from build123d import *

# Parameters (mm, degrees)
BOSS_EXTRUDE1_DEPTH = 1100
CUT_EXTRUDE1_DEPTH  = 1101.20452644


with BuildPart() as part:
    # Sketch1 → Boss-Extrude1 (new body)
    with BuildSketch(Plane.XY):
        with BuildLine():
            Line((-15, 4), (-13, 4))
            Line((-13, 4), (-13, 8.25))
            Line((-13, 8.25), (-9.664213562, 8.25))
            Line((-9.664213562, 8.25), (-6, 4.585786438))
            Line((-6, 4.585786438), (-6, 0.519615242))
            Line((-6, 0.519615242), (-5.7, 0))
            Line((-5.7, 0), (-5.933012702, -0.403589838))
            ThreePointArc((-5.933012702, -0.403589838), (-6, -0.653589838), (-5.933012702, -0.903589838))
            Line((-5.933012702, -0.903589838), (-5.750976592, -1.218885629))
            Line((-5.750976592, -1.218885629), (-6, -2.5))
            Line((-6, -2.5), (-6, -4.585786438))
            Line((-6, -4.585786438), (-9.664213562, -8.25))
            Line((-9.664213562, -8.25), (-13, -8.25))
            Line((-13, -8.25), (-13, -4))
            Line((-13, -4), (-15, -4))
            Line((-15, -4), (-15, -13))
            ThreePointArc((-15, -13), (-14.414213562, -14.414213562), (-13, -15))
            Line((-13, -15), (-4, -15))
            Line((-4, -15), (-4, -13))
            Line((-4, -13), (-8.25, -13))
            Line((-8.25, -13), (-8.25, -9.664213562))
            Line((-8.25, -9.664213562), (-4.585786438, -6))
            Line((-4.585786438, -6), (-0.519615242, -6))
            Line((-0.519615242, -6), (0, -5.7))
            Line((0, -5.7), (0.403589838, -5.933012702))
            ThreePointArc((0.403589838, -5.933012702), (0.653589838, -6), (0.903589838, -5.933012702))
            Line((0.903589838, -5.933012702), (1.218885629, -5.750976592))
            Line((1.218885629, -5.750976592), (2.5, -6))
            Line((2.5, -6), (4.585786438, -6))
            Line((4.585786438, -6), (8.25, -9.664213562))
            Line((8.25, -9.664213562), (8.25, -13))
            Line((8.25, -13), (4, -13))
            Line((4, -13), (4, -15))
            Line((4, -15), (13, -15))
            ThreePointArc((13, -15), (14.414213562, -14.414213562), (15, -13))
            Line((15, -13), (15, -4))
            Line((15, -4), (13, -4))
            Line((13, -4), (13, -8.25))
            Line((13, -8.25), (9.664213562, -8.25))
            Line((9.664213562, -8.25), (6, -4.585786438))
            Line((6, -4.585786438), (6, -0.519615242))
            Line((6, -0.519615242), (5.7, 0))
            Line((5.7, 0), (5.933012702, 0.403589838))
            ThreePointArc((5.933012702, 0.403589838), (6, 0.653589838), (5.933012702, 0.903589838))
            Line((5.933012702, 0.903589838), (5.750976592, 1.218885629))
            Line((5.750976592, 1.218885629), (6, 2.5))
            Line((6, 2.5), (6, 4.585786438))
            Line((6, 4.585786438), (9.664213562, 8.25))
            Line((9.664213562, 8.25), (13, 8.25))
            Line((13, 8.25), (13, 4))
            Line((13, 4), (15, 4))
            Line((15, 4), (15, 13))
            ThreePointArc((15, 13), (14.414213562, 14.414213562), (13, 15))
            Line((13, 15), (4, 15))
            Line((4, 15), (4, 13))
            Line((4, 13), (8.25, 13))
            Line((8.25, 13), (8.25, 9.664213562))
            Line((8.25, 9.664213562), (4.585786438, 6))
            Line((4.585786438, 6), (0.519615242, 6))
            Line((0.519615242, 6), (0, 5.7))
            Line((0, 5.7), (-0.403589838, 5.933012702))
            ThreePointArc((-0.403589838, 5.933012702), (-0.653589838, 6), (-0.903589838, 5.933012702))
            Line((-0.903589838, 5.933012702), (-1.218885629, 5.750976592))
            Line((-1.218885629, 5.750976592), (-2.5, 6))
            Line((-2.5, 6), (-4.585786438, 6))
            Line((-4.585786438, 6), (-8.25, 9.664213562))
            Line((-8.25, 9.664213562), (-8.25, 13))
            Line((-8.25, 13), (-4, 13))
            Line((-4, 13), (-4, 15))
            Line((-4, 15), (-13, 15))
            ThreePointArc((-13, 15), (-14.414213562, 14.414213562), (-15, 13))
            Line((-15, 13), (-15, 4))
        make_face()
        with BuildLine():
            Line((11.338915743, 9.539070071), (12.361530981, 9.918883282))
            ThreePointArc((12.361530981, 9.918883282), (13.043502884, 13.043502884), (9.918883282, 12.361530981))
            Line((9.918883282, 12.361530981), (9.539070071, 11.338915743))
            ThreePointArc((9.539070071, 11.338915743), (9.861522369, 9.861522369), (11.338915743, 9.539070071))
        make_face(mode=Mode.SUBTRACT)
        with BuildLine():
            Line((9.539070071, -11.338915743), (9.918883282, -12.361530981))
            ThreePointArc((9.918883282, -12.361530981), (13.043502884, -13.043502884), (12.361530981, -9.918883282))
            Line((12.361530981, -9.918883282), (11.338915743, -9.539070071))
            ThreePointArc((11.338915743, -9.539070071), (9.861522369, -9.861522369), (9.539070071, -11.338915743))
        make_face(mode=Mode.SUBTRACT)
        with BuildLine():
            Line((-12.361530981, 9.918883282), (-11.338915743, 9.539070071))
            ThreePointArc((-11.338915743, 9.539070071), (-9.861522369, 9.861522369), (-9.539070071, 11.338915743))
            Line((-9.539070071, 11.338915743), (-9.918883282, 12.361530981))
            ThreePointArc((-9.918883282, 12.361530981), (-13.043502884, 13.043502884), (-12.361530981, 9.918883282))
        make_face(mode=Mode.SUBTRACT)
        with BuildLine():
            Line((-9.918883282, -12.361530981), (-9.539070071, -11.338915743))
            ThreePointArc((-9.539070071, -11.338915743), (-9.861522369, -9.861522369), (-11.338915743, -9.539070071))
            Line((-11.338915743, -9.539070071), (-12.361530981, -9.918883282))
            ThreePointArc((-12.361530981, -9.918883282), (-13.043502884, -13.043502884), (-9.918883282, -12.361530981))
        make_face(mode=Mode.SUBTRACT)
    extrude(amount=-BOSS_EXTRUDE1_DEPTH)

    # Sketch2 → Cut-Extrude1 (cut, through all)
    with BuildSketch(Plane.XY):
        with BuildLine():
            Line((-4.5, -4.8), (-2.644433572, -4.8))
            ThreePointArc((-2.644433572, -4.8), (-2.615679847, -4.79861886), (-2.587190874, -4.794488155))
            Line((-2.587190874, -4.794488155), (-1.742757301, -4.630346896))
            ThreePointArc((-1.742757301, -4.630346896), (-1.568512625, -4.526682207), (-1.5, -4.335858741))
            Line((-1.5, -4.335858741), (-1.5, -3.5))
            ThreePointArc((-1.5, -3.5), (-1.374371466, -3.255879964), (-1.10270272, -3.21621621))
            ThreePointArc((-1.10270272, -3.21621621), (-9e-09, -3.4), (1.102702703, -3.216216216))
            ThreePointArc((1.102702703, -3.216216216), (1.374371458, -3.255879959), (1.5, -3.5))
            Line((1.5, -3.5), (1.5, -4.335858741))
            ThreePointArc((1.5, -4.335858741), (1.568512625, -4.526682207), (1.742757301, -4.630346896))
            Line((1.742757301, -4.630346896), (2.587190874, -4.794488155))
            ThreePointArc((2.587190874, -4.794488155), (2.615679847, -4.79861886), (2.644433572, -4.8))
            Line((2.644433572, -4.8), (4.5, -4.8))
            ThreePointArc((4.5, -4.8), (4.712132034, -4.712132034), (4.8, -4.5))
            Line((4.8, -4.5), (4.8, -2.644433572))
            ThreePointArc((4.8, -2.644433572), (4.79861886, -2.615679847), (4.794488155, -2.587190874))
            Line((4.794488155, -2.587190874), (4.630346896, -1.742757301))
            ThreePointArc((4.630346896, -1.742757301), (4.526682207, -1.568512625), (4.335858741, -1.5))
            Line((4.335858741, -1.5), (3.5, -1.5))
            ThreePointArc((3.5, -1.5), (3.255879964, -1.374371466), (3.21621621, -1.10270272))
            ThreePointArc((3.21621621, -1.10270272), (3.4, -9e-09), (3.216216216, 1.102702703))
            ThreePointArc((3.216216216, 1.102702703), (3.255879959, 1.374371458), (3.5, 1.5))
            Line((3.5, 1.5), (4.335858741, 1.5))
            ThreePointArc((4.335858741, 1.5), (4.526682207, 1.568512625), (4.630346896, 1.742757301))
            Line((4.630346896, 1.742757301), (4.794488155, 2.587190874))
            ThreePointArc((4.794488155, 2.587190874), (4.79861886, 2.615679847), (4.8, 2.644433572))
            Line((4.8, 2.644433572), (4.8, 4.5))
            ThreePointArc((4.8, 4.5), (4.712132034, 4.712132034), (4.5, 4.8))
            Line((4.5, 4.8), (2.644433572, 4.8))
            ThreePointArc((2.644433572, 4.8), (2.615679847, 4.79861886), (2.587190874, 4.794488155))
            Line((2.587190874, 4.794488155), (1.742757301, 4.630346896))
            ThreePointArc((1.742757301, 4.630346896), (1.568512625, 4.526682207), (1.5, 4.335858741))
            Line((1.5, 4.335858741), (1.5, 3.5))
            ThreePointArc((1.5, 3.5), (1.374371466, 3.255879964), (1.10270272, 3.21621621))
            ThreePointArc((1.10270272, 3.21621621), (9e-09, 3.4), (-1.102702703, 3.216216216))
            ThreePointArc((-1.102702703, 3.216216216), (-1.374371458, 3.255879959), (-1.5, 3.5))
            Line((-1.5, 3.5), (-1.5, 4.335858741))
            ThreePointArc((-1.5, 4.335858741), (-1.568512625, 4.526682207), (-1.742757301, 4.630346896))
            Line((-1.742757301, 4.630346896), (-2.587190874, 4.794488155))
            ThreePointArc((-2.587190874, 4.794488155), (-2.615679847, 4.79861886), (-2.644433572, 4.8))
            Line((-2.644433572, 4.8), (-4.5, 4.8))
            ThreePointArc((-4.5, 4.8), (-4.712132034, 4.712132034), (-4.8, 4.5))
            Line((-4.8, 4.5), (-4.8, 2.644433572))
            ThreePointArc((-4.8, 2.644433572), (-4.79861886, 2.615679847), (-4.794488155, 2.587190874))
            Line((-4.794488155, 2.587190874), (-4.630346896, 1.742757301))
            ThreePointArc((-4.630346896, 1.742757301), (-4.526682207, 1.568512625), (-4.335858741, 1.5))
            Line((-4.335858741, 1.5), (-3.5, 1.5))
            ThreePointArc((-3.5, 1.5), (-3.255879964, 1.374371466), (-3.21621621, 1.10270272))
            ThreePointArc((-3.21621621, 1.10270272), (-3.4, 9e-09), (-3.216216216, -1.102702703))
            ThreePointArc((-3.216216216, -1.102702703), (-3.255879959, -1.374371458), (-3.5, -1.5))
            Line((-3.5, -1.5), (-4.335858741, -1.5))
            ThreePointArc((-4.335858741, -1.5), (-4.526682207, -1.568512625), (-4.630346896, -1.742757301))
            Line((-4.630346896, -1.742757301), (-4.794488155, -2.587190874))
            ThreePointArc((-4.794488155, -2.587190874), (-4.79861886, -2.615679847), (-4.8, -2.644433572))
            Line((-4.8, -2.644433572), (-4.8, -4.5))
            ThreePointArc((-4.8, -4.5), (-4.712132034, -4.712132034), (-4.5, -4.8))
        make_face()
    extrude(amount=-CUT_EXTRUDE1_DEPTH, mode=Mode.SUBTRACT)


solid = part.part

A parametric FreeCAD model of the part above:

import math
import FreeCAD as App
import Part
import Sketcher
Q = App.Units.Quantity

doc = App.newDocument("Part")
params = doc.addObject("Spreadsheet::Sheet", "Params")
for row, (alias, value) in enumerate([
    ("sketch1_radius", "2 mm"),
    ("sketch1_radius2", "0.5 mm"),
    ("sketch1_radius3", "1.9 mm"),
    ("sketch1_radius4", "1.4 mm"),
    ("sketch1_width", "9 mm"),
    ("pad1_length", "1100 mm"),
    ("sketch2_radius", "0.3 mm"),
    ("sketch2_radius2", "3.4 mm"),
], start=1):
    params.set(f"A{row}", alias)
    params.set(f"B{row}", "=" + value)
    params.setAlias(f"B{row}", alias)

body = doc.addObject("PartDesign::Body", "Body")

# Sketch on XY plane
sketch1 = body.newObject("Sketcher::SketchObject", "Sketch")
sketch1.AttachmentSupport = (doc.getObject("XY_Plane"), [""])
sketch1.MapMode = "FlatFace"
sketch1.addGeometry(Part.LineSegment(App.Vector(-15, 4, 0), App.Vector(-13, 4, 0)), False)
sketch1.addGeometry(Part.LineSegment(App.Vector(-13, 4, 0), App.Vector(-13, 8.25, 0)), False)
sketch1.addGeometry(Part.LineSegment(App.Vector(-13, 8.25, 0), App.Vector(-9.66, 8.25, 0)), False)
sketch1.addGeometry(Part.LineSegment(App.Vector(-9.66, 8.25, 0), App.Vector(-6, 4.59, 0)), False)
sketch1.addGeometry(Part.LineSegment(App.Vector(-6, 4.59, 0), App.Vector(-6, 0.52, 0)), False)
sketch1.addGeometry(Part.LineSegment(App.Vector(-6, 0.52, 0), App.Vector(-5.7, 0, 0)), False)
sketch1.addGeometry(Part.LineSegment(App.Vector(-5.7, 0, 0), App.Vector(-5.93, -0.4, 0)), False)
sketch1.addGeometry(Part.ArcOfCircle(Part.Circle(App.Vector(-5.5, -0.65, 0), App.Vector(0, 0, 1), 0.5), math.radians(150), math.radians(210)), False)
sketch1.addGeometry(Part.LineSegment(App.Vector(-5.93, -0.9, 0), App.Vector(-5.75, -1.22, 0)), False)
sketch1.addGeometry(Part.LineSegment(App.Vector(-5.75, -1.22, 0), App.Vector(-6, -2.5, 0)), False)
sketch1.addGeometry(Part.LineSegment(App.Vector(-6, -2.5, 0), App.Vector(-6, -4.59, 0)), False)
sketch1.addGeometry(Part.LineSegment(App.Vector(-6, -4.59, 0), App.Vector(-9.66, -8.25, 0)), False)
sketch1.addGeometry(Part.LineSegment(App.Vector(-9.66, -8.25, 0), App.Vector(-13, -8.25, 0)), False)
sketch1.addGeometry(Part.LineSegment(App.Vector(-13, -8.25, 0), App.Vector(-13, -4, 0)), False)
sketch1.addGeometry(Part.LineSegment(App.Vector(-13, -4, 0), App.Vector(-15, -4, 0)), False)
sketch1.addGeometry(Part.LineSegment(App.Vector(-15, -4, 0), App.Vector(-15, -13, 0)), False)
sketch1.addGeometry(Part.ArcOfCircle(Part.Circle(App.Vector(-13, -13, 0), App.Vector(0, 0, 1), 2), math.radians(-180), math.radians(-90)), False)
sketch1.addGeometry(Part.LineSegment(App.Vector(-13, -15, 0), App.Vector(-4, -15, 0)), False)
sketch1.addGeometry(Part.LineSegment(App.Vector(-4, -15, 0), App.Vector(-4, -13, 0)), False)
sketch1.addGeometry(Part.LineSegment(App.Vector(-4, -13, 0), App.Vector(-8.25, -13, 0)), False)
sketch1.addGeometry(Part.LineSegment(App.Vector(-8.25, -13, 0), App.Vector(-8.25, -9.66, 0)), False)
sketch1.addGeometry(Part.LineSegment(App.Vector(-8.25, -9.66, 0), App.Vector(-4.59, -6, 0)), False)
sketch1.addGeometry(Part.LineSegment(App.Vector(-4.59, -6, 0), App.Vector(-0.52, -6, 0)), False)
sketch1.addGeometry(Part.LineSegment(App.Vector(-0.52, -6, 0), App.Vector(0, -5.7, 0)), False)
sketch1.addGeometry(Part.LineSegment(App.Vector(0, -5.7, 0), App.Vector(0.4, -5.93, 0)), False)
sketch1.addGeometry(Part.ArcOfCircle(Part.Circle(App.Vector(0.65, -5.5, 0), App.Vector(0, 0, 1), 0.5), math.radians(-120), math.radians(-60)), False)
sketch1.addGeometry(Part.LineSegment(App.Vector(0.9, -5.93, 0), App.Vector(1.22, -5.75, 0)), False)
sketch1.addGeometry(Part.LineSegment(App.Vector(1.22, -5.75, 0), App.Vector(2.5, -6, 0)), False)
sketch1.addGeometry(Part.LineSegment(App.Vector(2.5, -6, 0), App.Vector(4.59, -6, 0)), False)
sketch1.addGeometry(Part.LineSegment(App.Vector(4.59, -6, 0), App.Vector(8.25, -9.66, 0)), False)
sketch1.addGeometry(Part.LineSegment(App.Vector(8.25, -9.66, 0), App.Vector(8.25, -13, 0)), False)
sketch1.addGeometry(Part.LineSegment(App.Vector(8.25, -13, 0), App.Vector(4, -13, 0)), False)
sketch1.addGeometry(Part.LineSegment(App.Vector(4, -13, 0), App.Vector(4, -15, 0)), False)
sketch1.addGeometry(Part.LineSegment(App.Vector(4, -15, 0), App.Vector(13, -15, 0)), False)
sketch1.addGeometry(Part.ArcOfCircle(Part.Circle(App.Vector(13, -13, 0), App.Vector(0, 0, 1), 2), math.radians(-90), math.radians(0)), False)
sketch1.addGeometry(Part.LineSegment(App.Vector(15, -13, 0), App.Vector(15, -4, 0)), False)
sketch1.addGeometry(Part.LineSegment(App.Vector(15, -4, 0), App.Vector(13, -4, 0)), False)
sketch1.addGeometry(Part.LineSegment(App.Vector(13, -4, 0), App.Vector(13, -8.25, 0)), False)
sketch1.addGeometry(Part.LineSegment(App.Vector(13, -8.25, 0), App.Vector(9.66, -8.25, 0)), False)
sketch1.addGeometry(Part.LineSegment(App.Vector(9.66, -8.25, 0), App.Vector(6, -4.59, 0)), False)
sketch1.addGeometry(Part.LineSegment(App.Vector(6, -4.59, 0), App.Vector(6, -0.52, 0)), False)
sketch1.addGeometry(Part.LineSegment(App.Vector(6, -0.52, 0), App.Vector(5.7, 0, 0)), False)
sketch1.addGeometry(Part.LineSegment(App.Vector(5.7, 0, 0), App.Vector(5.93, 0.4, 0)), False)
sketch1.addGeometry(Part.ArcOfCircle(Part.Circle(App.Vector(5.5, 0.65, 0), App.Vector(0, 0, 1), 0.5), math.radians(-30), math.radians(30)), False)
sketch1.addGeometry(Part.LineSegment(App.Vector(5.93, 0.9, 0), App.Vector(5.75, 1.22, 0)), False)
sketch1.addGeometry(Part.LineSegment(App.Vector(5.75, 1.22, 0), App.Vector(6, 2.5, 0)), False)
sketch1.addGeometry(Part.LineSegment(App.Vector(6, 2.5, 0), App.Vector(6, 4.59, 0)), False)
sketch1.addGeometry(Part.LineSegment(App.Vector(6, 4.59, 0), App.Vector(9.66, 8.25, 0)), False)
sketch1.addGeometry(Part.LineSegment(App.Vector(9.66, 8.25, 0), App.Vector(13, 8.25, 0)), False)
sketch1.addGeometry(Part.LineSegment(App.Vector(13, 8.25, 0), App.Vector(13, 4, 0)), False)
sketch1.addGeometry(Part.LineSegment(App.Vector(13, 4, 0), App.Vector(15, 4, 0)), False)
sketch1.addGeometry(Part.LineSegment(App.Vector(15, 4, 0), App.Vector(15, 13, 0)), False)
sketch1.addGeometry(Part.ArcOfCircle(Part.Circle(App.Vector(13, 13, 0), App.Vector(0, 0, 1), 2), math.radians(0), math.radians(90)), False)
sketch1.addGeometry(Part.LineSegment(App.Vector(13, 15, 0), App.Vector(4, 15, 0)), False)
sketch1.addGeometry(Part.LineSegment(App.Vector(4, 15, 0), App.Vector(4, 13, 0)), False)
sketch1.addGeometry(Part.LineSegment(App.Vector(4, 13, 0), App.Vector(8.25, 13, 0)), False)
sketch1.addGeometry(Part.LineSegment(App.Vector(8.25, 13, 0), App.Vector(8.25, 9.66, 0)), False)
sketch1.addGeometry(Part.LineSegment(App.Vector(8.25, 9.66, 0), App.Vector(4.59, 6, 0)), False)
sketch1.addGeometry(Part.LineSegment(App.Vector(4.59, 6, 0), App.Vector(0.52, 6, 0)), False)
sketch1.addGeometry(Part.LineSegment(App.Vector(0.52, 6, 0), App.Vector(0, 5.7, 0)), False)
sketch1.addGeometry(Part.LineSegment(App.Vector(0, 5.7, 0), App.Vector(-0.4, 5.93, 0)), False)
sketch1.addGeometry(Part.ArcOfCircle(Part.Circle(App.Vector(-0.65, 5.5, 0), App.Vector(0, 0, 1), 0.5), math.radians(60), math.radians(120)), False)
sketch1.addGeometry(Part.LineSegment(App.Vector(-0.9, 5.93, 0), App.Vector(-1.22, 5.75, 0)), False)
sketch1.addGeometry(Part.LineSegment(App.Vector(-1.22, 5.75, 0), App.Vector(-2.5, 6, 0)), False)
sketch1.addGeometry(Part.LineSegment(App.Vector(-2.5, 6, 0), App.Vector(-4.59, 6, 0)), False)
sketch1.addGeometry(Part.LineSegment(App.Vector(-4.59, 6, 0), App.Vector(-8.25, 9.66, 0)), False)
sketch1.addGeometry(Part.LineSegment(App.Vector(-8.25, 9.66, 0), App.Vector(-8.25, 13, 0)), False)
sketch1.addGeometry(Part.LineSegment(App.Vector(-8.25, 13, 0), App.Vector(-4, 13, 0)), False)
sketch1.addGeometry(Part.LineSegment(App.Vector(-4, 13, 0), App.Vector(-4, 15, 0)), False)
sketch1.addGeometry(Part.LineSegment(App.Vector(-4, 15, 0), App.Vector(-13, 15, 0)), False)
sketch1.addGeometry(Part.ArcOfCircle(Part.Circle(App.Vector(-13, 13, 0), App.Vector(0, 0, 1), 2), math.radians(90), math.radians(180)), False)
sketch1.addGeometry(Part.LineSegment(App.Vector(-15, 13, 0), App.Vector(-15, 4, 0)), False)
sketch1.addGeometry(Part.LineSegment(App.Vector(-9.54, -11.34, 0), App.Vector(-9.92, -12.36, 0)), False)
sketch1.addGeometry(Part.ArcOfCircle(Part.Circle(App.Vector(-11.7, -11.7, 0), App.Vector(0, 0, 1), 1.9), math.radians(110), math.radians(340)), False)
sketch1.addGeometry(Part.LineSegment(App.Vector(-12.36, -9.92, 0), App.Vector(-11.34, -9.54, 0)), False)
sketch1.addGeometry(Part.ArcOfCircle(Part.Circle(App.Vector(-10.85, -10.85, 0), App.Vector(0, 0, 1), 1.4), math.radians(-20), math.radians(110)), False)
sketch1.addGeometry(Part.LineSegment(App.Vector(9.92, -12.36, 0), App.Vector(9.54, -11.34, 0)), False)
sketch1.addGeometry(Part.ArcOfCircle(Part.Circle(App.Vector(10.85, -10.85, 0), App.Vector(0, 0, 1), 1.4), math.radians(70), math.radians(200)), False)
sketch1.addGeometry(Part.LineSegment(App.Vector(11.34, -9.54, 0), App.Vector(12.36, -9.92, 0)), False)
sketch1.addGeometry(Part.ArcOfCircle(Part.Circle(App.Vector(11.7, -11.7, 0), App.Vector(0, 0, 1), 1.9), math.radians(-160), math.radians(70)), False)
sketch1.addGeometry(Part.LineSegment(App.Vector(-11.34, 9.54, 0), App.Vector(-12.36, 9.92, 0)), False)
sketch1.addGeometry(Part.ArcOfCircle(Part.Circle(App.Vector(-11.7, 11.7, 0), App.Vector(0, 0, 1), 1.9), math.radians(20), math.radians(250)), False)
sketch1.addGeometry(Part.LineSegment(App.Vector(-9.92, 12.36, 0), App.Vector(-9.54, 11.34, 0)), False)
sketch1.addGeometry(Part.ArcOfCircle(Part.Circle(App.Vector(-10.85, 10.85, 0), App.Vector(0, 0, 1), 1.4), math.radians(-110), math.radians(20)), False)
sketch1.addGeometry(Part.LineSegment(App.Vector(12.36, 9.92, 0), App.Vector(11.34, 9.54, 0)), False)
sketch1.addGeometry(Part.ArcOfCircle(Part.Circle(App.Vector(10.85, 10.85, 0), App.Vector(0, 0, 1), 1.4), math.radians(160), math.radians(290)), False)
sketch1.addGeometry(Part.LineSegment(App.Vector(9.54, 11.34, 0), App.Vector(9.92, 12.36, 0)), False)
sketch1.addGeometry(Part.ArcOfCircle(Part.Circle(App.Vector(11.7, 11.7, 0), App.Vector(0, 0, 1), 1.9), math.radians(-70), math.radians(160)), False)
sketch1.addConstraint(Sketcher.Constraint("Coincident", 0, 2, 1, 1))
sketch1.addConstraint(Sketcher.Constraint("Coincident", 1, 2, 2, 1))
sketch1.addConstraint(Sketcher.Constraint("Coincident", 2, 2, 3, 1))
sketch1.addConstraint(Sketcher.Constraint("Coincident", 3, 2, 4, 1))
sketch1.addConstraint(Sketcher.Constraint("Coincident", 4, 2, 5, 1))
sketch1.addConstraint(Sketcher.Constraint("Coincident", 5, 2, 6, 1))
sketch1.addConstraint(Sketcher.Constraint("Tangent", 6, 2, 7, 1))
sketch1.addConstraint(Sketcher.Constraint("Tangent", 7, 2, 8, 1))
sketch1.addConstraint(Sketcher.Constraint("Coincident", 8, 2, 9, 1))
sketch1.addConstraint(Sketcher.Constraint("Coincident", 9, 2, 10, 1))
sketch1.addConstraint(Sketcher.Constraint("Coincident", 10, 2, 11, 1))
sketch1.addConstraint(Sketcher.Constraint("Coincident", 11, 2, 12, 1))
sketch1.addConstraint(Sketcher.Constraint("Coincident", 12, 2, 13, 1))
sketch1.addConstraint(Sketcher.Constraint("Coincident", 13, 2, 14, 1))
sketch1.addConstraint(Sketcher.Constraint("Coincident", 14, 2, 15, 1))
sketch1.addConstraint(Sketcher.Constraint("Tangent", 15, 2, 16, 1))
sketch1.addConstraint(Sketcher.Constraint("Tangent", 16, 2, 17, 1))
sketch1.addConstraint(Sketcher.Constraint("Coincident", 17, 2, 18, 1))
sketch1.addConstraint(Sketcher.Constraint("Coincident", 18, 2, 19, 1))
sketch1.addConstraint(Sketcher.Constraint("Coincident", 19, 2, 20, 1))
sketch1.addConstraint(Sketcher.Constraint("Coincident", 20, 2, 21, 1))
sketch1.addConstraint(Sketcher.Constraint("Coincident", 21, 2, 22, 1))
sketch1.addConstraint(Sketcher.Constraint("Coincident", 22, 2, 23, 1))
sketch1.addConstraint(Sketcher.Constraint("Coincident", 23, 2, 24, 1))
sketch1.addConstraint(Sketcher.Constraint("Tangent", 24, 2, 25, 1))
sketch1.addConstraint(Sketcher.Constraint("Tangent", 25, 2, 26, 1))
sketch1.addConstraint(Sketcher.Constraint("Coincident", 26, 2, 27, 1))
sketch1.addConstraint(Sketcher.Constraint("Coincident", 27, 2, 28, 1))
sketch1.addConstraint(Sketcher.Constraint("Coincident", 28, 2, 29, 1))
sketch1.addConstraint(Sketcher.Constraint("Coincident", 29, 2, 30, 1))
sketch1.addConstraint(Sketcher.Constraint("Coincident", 30, 2, 31, 1))
sketch1.addConstraint(Sketcher.Constraint("Coincident", 31, 2, 32, 1))
sketch1.addConstraint(Sketcher.Constraint("Coincident", 32, 2, 33, 1))
sketch1.addConstraint(Sketcher.Constraint("Tangent", 33, 2, 34, 1))
sketch1.addConstraint(Sketcher.Constraint("Tangent", 34, 2, 35, 1))
sketch1.addConstraint(Sketcher.Constraint("Coincident", 35, 2, 36, 1))
sketch1.addConstraint(Sketcher.Constraint("Coincident", 36, 2, 37, 1))
sketch1.addConstraint(Sketcher.Constraint("Coincident", 37, 2, 38, 1))
sketch1.addConstraint(Sketcher.Constraint("Coincident", 38, 2, 39, 1))
sketch1.addConstraint(Sketcher.Constraint("Coincident", 39, 2, 40, 1))
sketch1.addConstraint(Sketcher.Constraint("Coincident", 40, 2, 41, 1))
sketch1.addConstraint(Sketcher.Constraint("Coincident", 41, 2, 42, 1))
sketch1.addConstraint(Sketcher.Constraint("Tangent", 42, 2, 43, 1))
sketch1.addConstraint(Sketcher.Constraint("Tangent", 43, 2, 44, 1))
sketch1.addConstraint(Sketcher.Constraint("Coincident", 44, 2, 45, 1))
sketch1.addConstraint(Sketcher.Constraint("Coincident", 45, 2, 46, 1))
sketch1.addConstraint(Sketcher.Constraint("Coincident", 46, 2, 47, 1))
sketch1.addConstraint(Sketcher.Constraint("Coincident", 47, 2, 48, 1))
sketch1.addConstraint(Sketcher.Constraint("Coincident", 48, 2, 49, 1))
sketch1.addConstraint(Sketcher.Constraint("Coincident", 49, 2, 50, 1))
sketch1.addConstraint(Sketcher.Constraint("Coincident", 50, 2, 51, 1))
sketch1.addConstraint(Sketcher.Constraint("Tangent", 51, 2, 52, 1))
sketch1.addConstraint(Sketcher.Constraint("Tangent", 52, 2, 53, 1))
sketch1.addConstraint(Sketcher.Constraint("Coincident", 53, 2, 54, 1))
sketch1.addConstraint(Sketcher.Constraint("Coincident", 54, 2, 55, 1))
sketch1.addConstraint(Sketcher.Constraint("Coincident", 55, 2, 56, 1))
sketch1.addConstraint(Sketcher.Constraint("Coincident", 56, 2, 57, 1))
sketch1.addConstraint(Sketcher.Constraint("Coincident", 57, 2, 58, 1))
sketch1.addConstraint(Sketcher.Constraint("Coincident", 58, 2, 59, 1))
sketch1.addConstraint(Sketcher.Constraint("Coincident", 59, 2, 60, 1))
sketch1.addConstraint(Sketcher.Constraint("Tangent", 60, 2, 61, 1))
sketch1.addConstraint(Sketcher.Constraint("Tangent", 61, 2, 62, 1))
sketch1.addConstraint(Sketcher.Constraint("Coincident", 62, 2, 63, 1))
sketch1.addConstraint(Sketcher.Constraint("Coincident", 63, 2, 64, 1))
sketch1.addConstraint(Sketcher.Constraint("Coincident", 64, 2, 65, 1))
sketch1.addConstraint(Sketcher.Constraint("Coincident", 65, 2, 66, 1))
sketch1.addConstraint(Sketcher.Constraint("Coincident", 66, 2, 67, 1))
sketch1.addConstraint(Sketcher.Constraint("Coincident", 67, 2, 68, 1))
sketch1.addConstraint(Sketcher.Constraint("Coincident", 68, 2, 69, 1))
sketch1.addConstraint(Sketcher.Constraint("Tangent", 69, 2, 70, 1))
sketch1.addConstraint(Sketcher.Constraint("Tangent", 70, 2, 71, 1))
sketch1.addConstraint(Sketcher.Constraint("Coincident", 71, 2, 0, 1))
sketch1.addConstraint(Sketcher.Constraint("Tangent", 72, 2, 73, 2))
sketch1.addConstraint(Sketcher.Constraint("Tangent", 73, 1, 74, 1))
sketch1.addConstraint(Sketcher.Constraint("Tangent", 74, 2, 75, 2))
sketch1.addConstraint(Sketcher.Constraint("Tangent", 75, 1, 72, 1))
sketch1.addConstraint(Sketcher.Constraint("Tangent", 76, 2, 77, 2))
sketch1.addConstraint(Sketcher.Constraint("Tangent", 77, 1, 78, 1))
sketch1.addConstraint(Sketcher.Constraint("Tangent", 78, 2, 79, 2))
sketch1.addConstraint(Sketcher.Constraint("Tangent", 79, 1, 76, 1))
sketch1.addConstraint(Sketcher.Constraint("Tangent", 80, 2, 81, 2))
sketch1.addConstraint(Sketcher.Constraint("Tangent", 81, 1, 82, 1))
sketch1.addConstraint(Sketcher.Constraint("Tangent", 82, 2, 83, 2))
sketch1.addConstraint(Sketcher.Constraint("Tangent", 83, 1, 80, 1))
sketch1.addConstraint(Sketcher.Constraint("Tangent", 84, 2, 85, 2))
sketch1.addConstraint(Sketcher.Constraint("Tangent", 85, 1, 86, 1))
sketch1.addConstraint(Sketcher.Constraint("Tangent", 86, 2, 87, 2))
sketch1.addConstraint(Sketcher.Constraint("Tangent", 87, 1, 84, 1))
sketch1.addConstraint(Sketcher.Constraint("Horizontal", 0))
sketch1.addConstraint(Sketcher.Constraint("Vertical", 1))
sketch1.addConstraint(Sketcher.Constraint("Horizontal", 2))
sketch1.addConstraint(Sketcher.Constraint("Vertical", 4))
sketch1.addConstraint(Sketcher.Constraint("Vertical", 10))
sketch1.addConstraint(Sketcher.Constraint("Horizontal", 12))
sketch1.addConstraint(Sketcher.Constraint("Vertical", 13))
sketch1.addConstraint(Sketcher.Constraint("Horizontal", 14))
sketch1.addConstraint(Sketcher.Constraint("Vertical", 15))
sketch1.addConstraint(Sketcher.Constraint("Horizontal", 17))
sketch1.addConstraint(Sketcher.Constraint("Vertical", 18))
sketch1.addConstraint(Sketcher.Constraint("Horizontal", 19))
sketch1.addConstraint(Sketcher.Constraint("Vertical", 20))
sketch1.addConstraint(Sketcher.Constraint("Horizontal", 22))
sketch1.addConstraint(Sketcher.Constraint("Horizontal", 28))
sketch1.addConstraint(Sketcher.Constraint("Vertical", 30))
sketch1.addConstraint(Sketcher.Constraint("Horizontal", 31))
sketch1.addConstraint(Sketcher.Constraint("Vertical", 32))
sketch1.addConstraint(Sketcher.Constraint("Horizontal", 33))
sketch1.addConstraint(Sketcher.Constraint("Vertical", 35))
sketch1.addConstraint(Sketcher.Constraint("Horizontal", 36))
sketch1.addConstraint(Sketcher.Constraint("Vertical", 37))
sketch1.addConstraint(Sketcher.Constraint("Horizontal", 38))
sketch1.addConstraint(Sketcher.Constraint("Vertical", 40))
sketch1.addConstraint(Sketcher.Constraint("Vertical", 46))
sketch1.addConstraint(Sketcher.Constraint("Horizontal", 48))
sketch1.addConstraint(Sketcher.Constraint("Vertical", 49))
sketch1.addConstraint(Sketcher.Constraint("Horizontal", 50))
sketch1.addConstraint(Sketcher.Constraint("Vertical", 51))
sketch1.addConstraint(Sketcher.Constraint("Horizontal", 53))
sketch1.addConstraint(Sketcher.Constraint("Vertical", 54))
sketch1.addConstraint(Sketcher.Constraint("Horizontal", 55))
sketch1.addConstraint(Sketcher.Constraint("Vertical", 56))
sketch1.addConstraint(Sketcher.Constraint("Horizontal", 58))
sketch1.addConstraint(Sketcher.Constraint("Horizontal", 64))
sketch1.addConstraint(Sketcher.Constraint("Vertical", 66))
sketch1.addConstraint(Sketcher.Constraint("Horizontal", 67))
sketch1.addConstraint(Sketcher.Constraint("Vertical", 68))
sketch1.addConstraint(Sketcher.Constraint("Horizontal", 69))
sketch1.addConstraint(Sketcher.Constraint("Vertical", 71))
sketch1.addConstraint(Sketcher.Constraint("Equal", 7, 25))
sketch1.addConstraint(Sketcher.Constraint("Equal", 16, 34))
sketch1.addConstraint(Sketcher.Constraint("Equal", 25, 43))
sketch1.addConstraint(Sketcher.Constraint("Equal", 34, 52))
sketch1.addConstraint(Sketcher.Constraint("Equal", 43, 61))
sketch1.addConstraint(Sketcher.Constraint("Equal", 52, 70))
sketch1.addConstraint(Sketcher.Constraint("Equal", 75, 77))
sketch1.addConstraint(Sketcher.Constraint("Equal", 73, 79))
sketch1.addConstraint(Sketcher.Constraint("Equal", 79, 81))
sketch1.addConstraint(Sketcher.Constraint("Equal", 77, 83))
sketch1.addConstraint(Sketcher.Constraint("Equal", 83, 85))
sketch1.addConstraint(Sketcher.Constraint("Equal", 81, 87))
sketch1.addConstraint(Sketcher.Constraint("Symmetric", 7, 3, 43, 3, -1, 1))
sketch1.addConstraint(Sketcher.Constraint("Symmetric", 16, 3, 52, 3, -1, 1))
sketch1.addConstraint(Sketcher.Constraint("Symmetric", 25, 3, 61, 3, -1, 1))
sketch1.addConstraint(Sketcher.Constraint("Symmetric", 34, 3, 70, 3, -1, 1))
sketch1.addConstraint(Sketcher.Constraint("Symmetric", 79, 3, 81, 3, -1, 1))
sketch1.addConstraint(Sketcher.Constraint("Symmetric", 77, 3, 83, 3, -1, 1))
sketch1.addConstraint(Sketcher.Constraint("Symmetric", 75, 3, 85, 3, -1, 1))
sketch1.addConstraint(Sketcher.Constraint("Symmetric", 73, 3, 87, 3, -1, 1))
sketch1.addConstraint(Sketcher.Constraint("Symmetric", 0, 2, 36, 2, -1, 1))
sketch1.addConstraint(Sketcher.Constraint("Symmetric", 2, 2, 38, 2, -1, 1))
sketch1.addConstraint(Sketcher.Constraint("Symmetric", 3, 2, 39, 2, -1, 1))
sketch1.addConstraint(Sketcher.Constraint("Symmetric", 5, 2, 41, 2, -1, 1))
sketch1.addConstraint(Sketcher.Constraint("Symmetric", 8, 2, 44, 2, -1, 1))
sketch1.addConstraint(Sketcher.Constraint("Symmetric", 9, 2, 45, 2, -1, 1))
sketch1.addConstraint(Sketcher.Constraint("Symmetric", 11, 2, 47, 2, -1, 1))
sketch1.addConstraint(Sketcher.Constraint("Symmetric", 13, 2, 49, 2, -1, 1))
sketch1.addConstraint(Sketcher.Constraint("Symmetric", 18, 2, 54, 2, -1, 1))
sketch1.addConstraint(Sketcher.Constraint("Symmetric", 20, 2, 56, 2, -1, 1))
sketch1.addConstraint(Sketcher.Constraint("Symmetric", 21, 2, 57, 2, -1, 1))
sketch1.addConstraint(Sketcher.Constraint("Symmetric", 23, 2, 59, 2, -1, 1))
sketch1.addConstraint(Sketcher.Constraint("Symmetric", 26, 2, 62, 2, -1, 1))
sketch1.addConstraint(Sketcher.Constraint("Symmetric", 27, 2, 63, 2, -1, 1))
sketch1.addConstraint(Sketcher.Constraint("Symmetric", 29, 2, 65, 2, -1, 1))
sketch1.addConstraint(Sketcher.Constraint("Symmetric", 31, 2, 67, 2, -1, 1))
sketch1.addConstraint(Sketcher.Constraint("Symmetric", 16, 3, 34, 3, -2))
sketch1.addConstraint(Sketcher.Constraint("Symmetric", 75, 3, 77, 3, -2))
sketch1.addConstraint(Sketcher.Constraint("Symmetric", 73, 3, 79, 3, -2))
sketch1.addConstraint(Sketcher.Constraint("Symmetric", 21, 2, 28, 2, -2))
sketch1.addConstraint(Sketcher.Constraint("Symmetric", 20, 2, 29, 2, -2))
sketch1.addConstraint(Sketcher.Constraint("Symmetric", 18, 2, 31, 2, -2))
sketch1.addConstraint(Sketcher.Constraint("Symmetric", 13, 2, 36, 2, -2))
sketch1.addConstraint(Sketcher.Constraint("Symmetric", 11, 2, 38, 2, -2))
sketch1.addConstraint(Sketcher.Constraint("Symmetric", 10, 2, 39, 2, -2))
sketch1.addConstraint(Sketcher.Constraint("PointOnObject", 5, 2, -1))
sketch1.addConstraint(Sketcher.Constraint("PointOnObject", 23, 2, -2))
sketch1.addConstraint(Sketcher.Constraint("Parallel", 5, 8))
sketch1.addConstraint(Sketcher.Constraint("Perpendicular", 3, 11))
sketch1.addConstraint(Sketcher.Constraint("Parallel", 11, 21))
sketch1.addConstraint(Sketcher.Constraint("Perpendicular", 8, 23))
sketch1.addConstraint(Sketcher.Constraint("Perpendicular", 6, 24))
sketch1.addConstraint(Sketcher.Constraint("Parallel", 23, 26))
sketch1.addConstraint(Sketcher.Constraint("Perpendicular", 9, 27))
sketch1.addConstraint(Sketcher.Constraint("Perpendicular", 26, 41))
sketch1.addConstraint(Sketcher.Constraint("Perpendicular", 39, 47))
sketch1.addConstraint(Sketcher.Constraint("Perpendicular", 44, 59))
sketch1.addConstraint(Sketcher.Constraint("Perpendicular", 57, 65))
sketch1.addConstraint(Sketcher.Constraint("Perpendicular", 74, 76))
sketch1.addConstraint(Sketcher.Constraint("Horizontal", 15, 2, 18, 2))
sketch1.addConstraint(Sketcher.Constraint("Horizontal", 24, 2, 25, 2))
sketch1.addConstraint(Sketcher.Constraint("Vertical", 70, 3, 0, 2))
sketch1.addConstraint(Sketcher.Constraint("Equal", 67, 1))
sketch1.addConstraint(Sketcher.Constraint("Equal", 58, 4))
sketch1.addConstraint(Sketcher.Constraint("Equal", 64, 10))
sketch1.addConstraint(Sketcher.Constraint("Equal", 69, 15))
sketch1.addConstraint(Sketcher.Constraint("Equal", 48, 20))
sketch1.addConstraint(Sketcher.Constraint("Equal", 11, 21))
sketch1.addConstraint(Sketcher.Constraint("Equal", 5, 23))
sketch1.addConstraint(Sketcher.Constraint("Equal", 6, 24))
sketch1.addConstraint(Sketcher.Constraint("Radius", 16, Q("2 mm")))
sketch1.addConstraint(Sketcher.Constraint("Radius", 7, Q("0.5 mm")))
sketch1.addConstraint(Sketcher.Constraint("Radius", 73, Q("1.9 mm")))
sketch1.addConstraint(Sketcher.Constraint("Radius", 75, Q("1.4 mm")))
sketch1.addConstraint(Sketcher.Constraint("DistanceX", 17, 1, 17, 2, Q("9 mm")))
sketch1.addConstraint(Sketcher.Constraint("Angle", 5, Q("-60 deg")))
sketch1.addConstraint(Sketcher.Constraint("Angle", 9, Q("-101 deg")))
sketch1.addConstraint(Sketcher.Constraint("DistanceX", 16, 3, -1, 1, Q("13 mm")))
sketch1.addConstraint(Sketcher.Constraint("DistanceX", 3, 2, -1, 1, Q("6 mm")))
sketch1.addConstraint(Sketcher.Constraint("Distance", 5, Q("0.6 mm")))
sketch1.addConstraint(Sketcher.Constraint("DistanceX", 19, 2, 19, 1, Q("4.25 mm")))
sketch1.addConstraint(Sketcher.Constraint("DistanceX", 7, 3, -1, 1, Q("5.5 mm")))
sketch1.addConstraint(Sketcher.Constraint("DistanceX", 73, 3, -1, 1, Q("11.7 mm")))
sketch1.addConstraint(Sketcher.Constraint("DistanceY", 73, 3, -1, 1, Q("11.7 mm")))
sketch1.addConstraint(Sketcher.Constraint("DistanceY", 9, 2, -1, 1, Q("2.5 mm")))
sketch1.addConstraint(Sketcher.Constraint("DistanceX", 22, 1, 22, 2, Q("4.066171 mm")))
sketch1.addConstraint(Sketcher.Constraint("Distance", 72, Q("1.090871 mm")))
sketch1.setExpression("Constraints[198]", "Params.sketch1_radius")
sketch1.setExpression("Constraints[199]", "Params.sketch1_radius2")
sketch1.setExpression("Constraints[200]", "Params.sketch1_radius3")
sketch1.setExpression("Constraints[201]", "Params.sketch1_radius4")
sketch1.setExpression("Constraints[202]", "Params.sketch1_width")
pad1 = body.newObject("PartDesign::Pad", "Pad")
pad1.Profile = sketch1
pad1.setExpression("Length", "Params.pad1_length")
pad1.Reversed = True

# Sketch on XY plane
sketch2 = body.newObject("Sketcher::SketchObject", "Sketch001")
sketch2.AttachmentSupport = (doc.getObject("XY_Plane"), [""])
sketch2.MapMode = "FlatFace"
sketch2.addGeometry(Part.LineSegment(App.Vector(-4.5, -4.8, 0), App.Vector(-2.64, -4.8, 0)), False)
sketch2.addGeometry(Part.ArcOfCircle(Part.Circle(App.Vector(-2.64, -4.5, 0), App.Vector(0, 0, 1), 0.3), math.radians(-90), math.radians(-79)), False)
sketch2.addGeometry(Part.LineSegment(App.Vector(-2.59, -4.79, 0), App.Vector(-1.74, -4.63, 0)), False)
sketch2.addGeometry(Part.ArcOfCircle(Part.Circle(App.Vector(-1.8, -4.34, 0), App.Vector(0, 0, 1), 0.3), math.radians(-79), math.radians(0)), False)
sketch2.addGeometry(Part.LineSegment(App.Vector(-1.5, -4.34, 0), App.Vector(-1.5, -3.5, 0)), False)
sketch2.addGeometry(Part.ArcOfCircle(Part.Circle(App.Vector(-1.2, -3.5, 0), App.Vector(0, 0, 1), 0.3), math.radians(71), math.radians(180)), False)
sketch2.addGeometry(Part.ArcOfCircle(Part.Circle(App.Vector(0, 0, 0), App.Vector(0, 0, 1), 3.4), math.radians(-109), math.radians(-71)), False)
sketch2.addGeometry(Part.ArcOfCircle(Part.Circle(App.Vector(1.2, -3.5, 0), App.Vector(0, 0, 1), 0.3), math.radians(0), math.radians(109)), False)
sketch2.addGeometry(Part.LineSegment(App.Vector(1.5, -3.5, 0), App.Vector(1.5, -4.34, 0)), False)
sketch2.addGeometry(Part.ArcOfCircle(Part.Circle(App.Vector(1.8, -4.34, 0), App.Vector(0, 0, 1), 0.3), math.radians(180), math.radians(259)), False)
sketch2.addGeometry(Part.LineSegment(App.Vector(1.74, -4.63, 0), App.Vector(2.59, -4.79, 0)), False)
sketch2.addGeometry(Part.ArcOfCircle(Part.Circle(App.Vector(2.64, -4.5, 0), App.Vector(0, 0, 1), 0.3), math.radians(-101), math.radians(-90)), False)
sketch2.addGeometry(Part.LineSegment(App.Vector(2.64, -4.8, 0), App.Vector(4.5, -4.8, 0)), False)
sketch2.addGeometry(Part.ArcOfCircle(Part.Circle(App.Vector(4.5, -4.5, 0), App.Vector(0, 0, 1), 0.3), math.radians(-90), math.radians(0)), False)
sketch2.addGeometry(Part.LineSegment(App.Vector(4.8, -4.5, 0), App.Vector(4.8, -2.64, 0)), False)
sketch2.addGeometry(Part.ArcOfCircle(Part.Circle(App.Vector(4.5, -2.64, 0), App.Vector(0, 0, 1), 0.3), math.radians(0), math.radians(11)), False)
sketch2.addGeometry(Part.LineSegment(App.Vector(4.79, -2.59, 0), App.Vector(4.63, -1.74, 0)), False)
sketch2.addGeometry(Part.ArcOfCircle(Part.Circle(App.Vector(4.34, -1.8, 0), App.Vector(0, 0, 1), 0.3), math.radians(11), math.radians(90)), False)
sketch2.addGeometry(Part.LineSegment(App.Vector(4.34, -1.5, 0), App.Vector(3.5, -1.5, 0)), False)
sketch2.addGeometry(Part.ArcOfCircle(Part.Circle(App.Vector(3.5, -1.2, 0), App.Vector(0, 0, 1), 0.3), math.radians(161), math.radians(270)), False)
sketch2.addGeometry(Part.ArcOfCircle(Part.Circle(App.Vector(0, 0, 0), App.Vector(0, 0, 1), 3.4), math.radians(-19), math.radians(19)), False)
sketch2.addGeometry(Part.ArcOfCircle(Part.Circle(App.Vector(3.5, 1.2, 0), App.Vector(0, 0, 1), 0.3), math.radians(90), math.radians(199)), False)
sketch2.addGeometry(Part.LineSegment(App.Vector(3.5, 1.5, 0), App.Vector(4.34, 1.5, 0)), False)
sketch2.addGeometry(Part.ArcOfCircle(Part.Circle(App.Vector(4.34, 1.8, 0), App.Vector(0, 0, 1), 0.3), math.radians(-90), math.radians(-11)), False)
sketch2.addGeometry(Part.LineSegment(App.Vector(4.63, 1.74, 0), App.Vector(4.79, 2.59, 0)), False)
sketch2.addGeometry(Part.ArcOfCircle(Part.Circle(App.Vector(4.5, 2.64, 0), App.Vector(0, 0, 1), 0.3), math.radians(-11), math.radians(0)), False)
sketch2.addGeometry(Part.LineSegment(App.Vector(4.8, 2.64, 0), App.Vector(4.8, 4.5, 0)), False)
sketch2.addGeometry(Part.ArcOfCircle(Part.Circle(App.Vector(4.5, 4.5, 0), App.Vector(0, 0, 1), 0.3), math.radians(0), math.radians(90)), False)
sketch2.addGeometry(Part.LineSegment(App.Vector(4.5, 4.8, 0), App.Vector(2.64, 4.8, 0)), False)
sketch2.addGeometry(Part.ArcOfCircle(Part.Circle(App.Vector(2.64, 4.5, 0), App.Vector(0, 0, 1), 0.3), math.radians(90), math.radians(101)), False)
sketch2.addGeometry(Part.LineSegment(App.Vector(2.59, 4.79, 0), App.Vector(1.74, 4.63, 0)), False)
sketch2.addGeometry(Part.ArcOfCircle(Part.Circle(App.Vector(1.8, 4.34, 0), App.Vector(0, 0, 1), 0.3), math.radians(101), math.radians(180)), False)
sketch2.addGeometry(Part.LineSegment(App.Vector(1.5, 4.34, 0), App.Vector(1.5, 3.5, 0)), False)
sketch2.addGeometry(Part.ArcOfCircle(Part.Circle(App.Vector(1.2, 3.5, 0), App.Vector(0, 0, 1), 0.3), math.radians(-109), math.radians(0)), False)
sketch2.addGeometry(Part.ArcOfCircle(Part.Circle(App.Vector(0, 0, 0), App.Vector(0, 0, 1), 3.4), math.radians(71), math.radians(109)), False)
sketch2.addGeometry(Part.ArcOfCircle(Part.Circle(App.Vector(-1.2, 3.5, 0), App.Vector(0, 0, 1), 0.3), math.radians(-180), math.radians(-71)), False)
sketch2.addGeometry(Part.LineSegment(App.Vector(-1.5, 3.5, 0), App.Vector(-1.5, 4.34, 0)), False)
sketch2.addGeometry(Part.ArcOfCircle(Part.Circle(App.Vector(-1.8, 4.34, 0), App.Vector(0, 0, 1), 0.3), math.radians(0), math.radians(79)), False)
sketch2.addGeometry(Part.LineSegment(App.Vector(-1.74, 4.63, 0), App.Vector(-2.59, 4.79, 0)), False)
sketch2.addGeometry(Part.ArcOfCircle(Part.Circle(App.Vector(-2.64, 4.5, 0), App.Vector(0, 0, 1), 0.3), math.radians(79), math.radians(90)), False)
sketch2.addGeometry(Part.LineSegment(App.Vector(-2.64, 4.8, 0), App.Vector(-4.5, 4.8, 0)), False)
sketch2.addGeometry(Part.ArcOfCircle(Part.Circle(App.Vector(-4.5, 4.5, 0), App.Vector(0, 0, 1), 0.3), math.radians(90), math.radians(180)), False)
sketch2.addGeometry(Part.LineSegment(App.Vector(-4.8, 4.5, 0), App.Vector(-4.8, 2.64, 0)), False)
sketch2.addGeometry(Part.ArcOfCircle(Part.Circle(App.Vector(-4.5, 2.64, 0), App.Vector(0, 0, 1), 0.3), math.radians(180), math.radians(191)), False)
sketch2.addGeometry(Part.LineSegment(App.Vector(-4.79, 2.59, 0), App.Vector(-4.63, 1.74, 0)), False)
sketch2.addGeometry(Part.ArcOfCircle(Part.Circle(App.Vector(-4.34, 1.8, 0), App.Vector(0, 0, 1), 0.3), math.radians(-169), math.radians(-90)), False)
sketch2.addGeometry(Part.LineSegment(App.Vector(-4.34, 1.5, 0), App.Vector(-3.5, 1.5, 0)), False)
sketch2.addGeometry(Part.ArcOfCircle(Part.Circle(App.Vector(-3.5, 1.2, 0), App.Vector(0, 0, 1), 0.3), math.radians(-19), math.radians(90)), False)
sketch2.addGeometry(Part.ArcOfCircle(Part.Circle(App.Vector(0, 0, 0), App.Vector(0, 0, 1), 3.4), math.radians(161), math.radians(199)), False)
sketch2.addGeometry(Part.ArcOfCircle(Part.Circle(App.Vector(-3.5, -1.2, 0), App.Vector(0, 0, 1), 0.3), math.radians(-90), math.radians(19)), False)
sketch2.addGeometry(Part.LineSegment(App.Vector(-3.5, -1.5, 0), App.Vector(-4.34, -1.5, 0)), False)
sketch2.addGeometry(Part.ArcOfCircle(Part.Circle(App.Vector(-4.34, -1.8, 0), App.Vector(0, 0, 1), 0.3), math.radians(90), math.radians(169)), False)
sketch2.addGeometry(Part.LineSegment(App.Vector(-4.63, -1.74, 0), App.Vector(-4.79, -2.59, 0)), False)
sketch2.addGeometry(Part.ArcOfCircle(Part.Circle(App.Vector(-4.5, -2.64, 0), App.Vector(0, 0, 1), 0.3), math.radians(169), math.radians(180)), False)
sketch2.addGeometry(Part.LineSegment(App.Vector(-4.8, -2.64, 0), App.Vector(-4.8, -4.5, 0)), False)
sketch2.addGeometry(Part.ArcOfCircle(Part.Circle(App.Vector(-4.5, -4.5, 0), App.Vector(0, 0, 1), 0.3), math.radians(-180), math.radians(-90)), False)
sketch2.addConstraint(Sketcher.Constraint("Tangent", 0, 2, 1, 1))
sketch2.addConstraint(Sketcher.Constraint("Tangent", 1, 2, 2, 1))
sketch2.addConstraint(Sketcher.Constraint("Tangent", 2, 2, 3, 1))
sketch2.addConstraint(Sketcher.Constraint("Tangent", 3, 2, 4, 1))
sketch2.addConstraint(Sketcher.Constraint("Tangent", 4, 2, 5, 2))
sketch2.addConstraint(Sketcher.Constraint("Tangent", 5, 1, 6, 1))
sketch2.addConstraint(Sketcher.Constraint("Tangent", 6, 2, 7, 2))
sketch2.addConstraint(Sketcher.Constraint("Tangent", 7, 1, 8, 1))
sketch2.addConstraint(Sketcher.Constraint("Tangent", 8, 2, 9, 1))
sketch2.addConstraint(Sketcher.Constraint("Tangent", 9, 2, 10, 1))
sketch2.addConstraint(Sketcher.Constraint("Tangent", 10, 2, 11, 1))
sketch2.addConstraint(Sketcher.Constraint("Tangent", 11, 2, 12, 1))
sketch2.addConstraint(Sketcher.Constraint("Tangent", 12, 2, 13, 1))
sketch2.addConstraint(Sketcher.Constraint("Tangent", 13, 2, 14, 1))
sketch2.addConstraint(Sketcher.Constraint("Tangent", 14, 2, 15, 1))
sketch2.addConstraint(Sketcher.Constraint("Tangent", 15, 2, 16, 1))
sketch2.addConstraint(Sketcher.Constraint("Tangent", 16, 2, 17, 1))
sketch2.addConstraint(Sketcher.Constraint("Tangent", 17, 2, 18, 1))
sketch2.addConstraint(Sketcher.Constraint("Tangent", 18, 2, 19, 2))
sketch2.addConstraint(Sketcher.Constraint("Tangent", 19, 1, 20, 1))
sketch2.addConstraint(Sketcher.Constraint("Tangent", 20, 2, 21, 2))
sketch2.addConstraint(Sketcher.Constraint("Tangent", 21, 1, 22, 1))
sketch2.addConstraint(Sketcher.Constraint("Tangent", 22, 2, 23, 1))
sketch2.addConstraint(Sketcher.Constraint("Tangent", 23, 2, 24, 1))
sketch2.addConstraint(Sketcher.Constraint("Tangent", 24, 2, 25, 1))
sketch2.addConstraint(Sketcher.Constraint("Tangent", 25, 2, 26, 1))
sketch2.addConstraint(Sketcher.Constraint("Tangent", 26, 2, 27, 1))
sketch2.addConstraint(Sketcher.Constraint("Tangent", 27, 2, 28, 1))
sketch2.addConstraint(Sketcher.Constraint("Tangent", 28, 2, 29, 1))
sketch2.addConstraint(Sketcher.Constraint("Tangent", 29, 2, 30, 1))
sketch2.addConstraint(Sketcher.Constraint("Tangent", 30, 2, 31, 1))
sketch2.addConstraint(Sketcher.Constraint("Tangent", 31, 2, 32, 1))
sketch2.addConstraint(Sketcher.Constraint("Tangent", 32, 2, 33, 2))
sketch2.addConstraint(Sketcher.Constraint("Tangent", 33, 1, 34, 1))
sketch2.addConstraint(Sketcher.Constraint("Tangent", 34, 2, 35, 2))
sketch2.addConstraint(Sketcher.Constraint("Tangent", 35, 1, 36, 1))
sketch2.addConstraint(Sketcher.Constraint("Tangent", 36, 2, 37, 1))
sketch2.addConstraint(Sketcher.Constraint("Tangent", 37, 2, 38, 1))
sketch2.addConstraint(Sketcher.Constraint("Tangent", 38, 2, 39, 1))
sketch2.addConstraint(Sketcher.Constraint("Tangent", 39, 2, 40, 1))
sketch2.addConstraint(Sketcher.Constraint("Tangent", 40, 2, 41, 1))
sketch2.addConstraint(Sketcher.Constraint("Tangent", 41, 2, 42, 1))
sketch2.addConstraint(Sketcher.Constraint("Tangent", 42, 2, 43, 1))
sketch2.addConstraint(Sketcher.Constraint("Tangent", 43, 2, 44, 1))
sketch2.addConstraint(Sketcher.Constraint("Tangent", 44, 2, 45, 1))
sketch2.addConstraint(Sketcher.Constraint("Tangent", 45, 2, 46, 1))
sketch2.addConstraint(Sketcher.Constraint("Tangent", 46, 2, 47, 2))
sketch2.addConstraint(Sketcher.Constraint("Tangent", 47, 1, 48, 1))
sketch2.addConstraint(Sketcher.Constraint("Tangent", 48, 2, 49, 2))
sketch2.addConstraint(Sketcher.Constraint("Tangent", 49, 1, 50, 1))
sketch2.addConstraint(Sketcher.Constraint("Tangent", 50, 2, 51, 1))
sketch2.addConstraint(Sketcher.Constraint("Tangent", 51, 2, 52, 1))
sketch2.addConstraint(Sketcher.Constraint("Tangent", 52, 2, 53, 1))
sketch2.addConstraint(Sketcher.Constraint("Tangent", 53, 2, 54, 1))
sketch2.addConstraint(Sketcher.Constraint("Tangent", 54, 2, 55, 1))
sketch2.addConstraint(Sketcher.Constraint("Tangent", 55, 2, 0, 1))
sketch2.addConstraint(Sketcher.Constraint("Horizontal", 0))
sketch2.addConstraint(Sketcher.Constraint("Vertical", 4))
sketch2.addConstraint(Sketcher.Constraint("Vertical", 8))
sketch2.addConstraint(Sketcher.Constraint("Horizontal", 12))
sketch2.addConstraint(Sketcher.Constraint("Vertical", 14))
sketch2.addConstraint(Sketcher.Constraint("Horizontal", 18))
sketch2.addConstraint(Sketcher.Constraint("Horizontal", 22))
sketch2.addConstraint(Sketcher.Constraint("Vertical", 26))
sketch2.addConstraint(Sketcher.Constraint("Horizontal", 28))
sketch2.addConstraint(Sketcher.Constraint("Vertical", 32))
sketch2.addConstraint(Sketcher.Constraint("Vertical", 36))
sketch2.addConstraint(Sketcher.Constraint("Horizontal", 40))
sketch2.addConstraint(Sketcher.Constraint("Vertical", 42))
sketch2.addConstraint(Sketcher.Constraint("Horizontal", 46))
sketch2.addConstraint(Sketcher.Constraint("Horizontal", 50))
sketch2.addConstraint(Sketcher.Constraint("Vertical", 54))
sketch2.addConstraint(Sketcher.Constraint("Coincident", 6, 3, -1, 1))
sketch2.addConstraint(Sketcher.Constraint("Coincident", 20, 3, -1, 1))
sketch2.addConstraint(Sketcher.Constraint("Coincident", 34, 3, -1, 1))
sketch2.addConstraint(Sketcher.Constraint("Coincident", 48, 3, -1, 1))
sketch2.addConstraint(Sketcher.Constraint("Equal", 1, 3))
sketch2.addConstraint(Sketcher.Constraint("Equal", 3, 5))
sketch2.addConstraint(Sketcher.Constraint("Equal", 5, 7))
sketch2.addConstraint(Sketcher.Constraint("Equal", 7, 9))
sketch2.addConstraint(Sketcher.Constraint("Equal", 9, 11))
sketch2.addConstraint(Sketcher.Constraint("Equal", 11, 13))
sketch2.addConstraint(Sketcher.Constraint("Equal", 13, 15))
sketch2.addConstraint(Sketcher.Constraint("Equal", 15, 17))
sketch2.addConstraint(Sketcher.Constraint("Equal", 17, 19))
sketch2.addConstraint(Sketcher.Constraint("Equal", 6, 20))
sketch2.addConstraint(Sketcher.Constraint("Equal", 19, 21))
sketch2.addConstraint(Sketcher.Constraint("Equal", 21, 23))
sketch2.addConstraint(Sketcher.Constraint("Equal", 23, 25))
sketch2.addConstraint(Sketcher.Constraint("Equal", 25, 27))
sketch2.addConstraint(Sketcher.Constraint("Equal", 27, 29))
sketch2.addConstraint(Sketcher.Constraint("Equal", 29, 31))
sketch2.addConstraint(Sketcher.Constraint("Equal", 31, 33))
sketch2.addConstraint(Sketcher.Constraint("Equal", 20, 34))
sketch2.addConstraint(Sketcher.Constraint("Equal", 33, 35))
sketch2.addConstraint(Sketcher.Constraint("Equal", 35, 37))
sketch2.addConstraint(Sketcher.Constraint("Equal", 37, 39))
sketch2.addConstraint(Sketcher.Constraint("Equal", 39, 41))
sketch2.addConstraint(Sketcher.Constraint("Equal", 41, 43))
sketch2.addConstraint(Sketcher.Constraint("Equal", 43, 45))
sketch2.addConstraint(Sketcher.Constraint("Equal", 45, 47))
sketch2.addConstraint(Sketcher.Constraint("Equal", 34, 48))
sketch2.addConstraint(Sketcher.Constraint("Equal", 47, 49))
sketch2.addConstraint(Sketcher.Constraint("Equal", 49, 51))
sketch2.addConstraint(Sketcher.Constraint("Equal", 51, 53))
sketch2.addConstraint(Sketcher.Constraint("Equal", 53, 55))
sketch2.addConstraint(Sketcher.Constraint("Symmetric", 1, 3, 29, 3, -1, 1))
sketch2.addConstraint(Sketcher.Constraint("Symmetric", 3, 3, 31, 3, -1, 1))
sketch2.addConstraint(Sketcher.Constraint("Symmetric", 9, 3, 37, 3, -1, 1))
sketch2.addConstraint(Sketcher.Constraint("Symmetric", 11, 3, 39, 3, -1, 1))
sketch2.addConstraint(Sketcher.Constraint("Symmetric", 15, 3, 43, 3, -1, 1))
sketch2.addConstraint(Sketcher.Constraint("Symmetric", 17, 3, 45, 3, -1, 1))
sketch2.addConstraint(Sketcher.Constraint("Symmetric", 23, 3, 51, 3, -1, 1))
sketch2.addConstraint(Sketcher.Constraint("Symmetric", 25, 3, 53, 3, -1, 1))
sketch2.addConstraint(Sketcher.Constraint("Symmetric", 3, 3, 9, 3, -2))
sketch2.addConstraint(Sketcher.Constraint("Symmetric", 1, 3, 11, 3, -2))
sketch2.addConstraint(Sketcher.Constraint("Symmetric", 25, 3, 43, 3, -2))
sketch2.addConstraint(Sketcher.Constraint("Symmetric", 23, 3, 45, 3, -2))
sketch2.addConstraint(Sketcher.Constraint("Perpendicular", 2, 16))
sketch2.addConstraint(Sketcher.Constraint("Equal", 50, 4))
sketch2.addConstraint(Sketcher.Constraint("Equal", 40, 14))
sketch2.addConstraint(Sketcher.Constraint("Equal", 10, 16))
sketch2.addConstraint(Sketcher.Constraint("Radius", 1, Q("0.3 mm")))
sketch2.addConstraint(Sketcher.Constraint("Radius", 6, Q("3.4 mm")))
sketch2.addConstraint(Sketcher.Constraint("Angle", 2, Q("11 deg")))
sketch2.addConstraint(Sketcher.Constraint("DistanceY", 1, 3, -1, 1, Q("4.5 mm")))
sketch2.addConstraint(Sketcher.Constraint("DistanceX", 3, 3, -1, 1, Q("1.8 mm")))
sketch2.addConstraint(Sketcher.Constraint("DistanceX", 18, 2, 18, 1, Q("0.835859 mm")))
sketch2.setExpression("Constraints[122]", "Params.sketch2_radius")
sketch2.setExpression("Constraints[123]", "Params.sketch2_radius2")
pocket1 = body.newObject("PartDesign::Pocket", "Pocket")
pocket1.Profile = sketch2
pocket1.Type = "ThroughAll"

doc.recompute()
